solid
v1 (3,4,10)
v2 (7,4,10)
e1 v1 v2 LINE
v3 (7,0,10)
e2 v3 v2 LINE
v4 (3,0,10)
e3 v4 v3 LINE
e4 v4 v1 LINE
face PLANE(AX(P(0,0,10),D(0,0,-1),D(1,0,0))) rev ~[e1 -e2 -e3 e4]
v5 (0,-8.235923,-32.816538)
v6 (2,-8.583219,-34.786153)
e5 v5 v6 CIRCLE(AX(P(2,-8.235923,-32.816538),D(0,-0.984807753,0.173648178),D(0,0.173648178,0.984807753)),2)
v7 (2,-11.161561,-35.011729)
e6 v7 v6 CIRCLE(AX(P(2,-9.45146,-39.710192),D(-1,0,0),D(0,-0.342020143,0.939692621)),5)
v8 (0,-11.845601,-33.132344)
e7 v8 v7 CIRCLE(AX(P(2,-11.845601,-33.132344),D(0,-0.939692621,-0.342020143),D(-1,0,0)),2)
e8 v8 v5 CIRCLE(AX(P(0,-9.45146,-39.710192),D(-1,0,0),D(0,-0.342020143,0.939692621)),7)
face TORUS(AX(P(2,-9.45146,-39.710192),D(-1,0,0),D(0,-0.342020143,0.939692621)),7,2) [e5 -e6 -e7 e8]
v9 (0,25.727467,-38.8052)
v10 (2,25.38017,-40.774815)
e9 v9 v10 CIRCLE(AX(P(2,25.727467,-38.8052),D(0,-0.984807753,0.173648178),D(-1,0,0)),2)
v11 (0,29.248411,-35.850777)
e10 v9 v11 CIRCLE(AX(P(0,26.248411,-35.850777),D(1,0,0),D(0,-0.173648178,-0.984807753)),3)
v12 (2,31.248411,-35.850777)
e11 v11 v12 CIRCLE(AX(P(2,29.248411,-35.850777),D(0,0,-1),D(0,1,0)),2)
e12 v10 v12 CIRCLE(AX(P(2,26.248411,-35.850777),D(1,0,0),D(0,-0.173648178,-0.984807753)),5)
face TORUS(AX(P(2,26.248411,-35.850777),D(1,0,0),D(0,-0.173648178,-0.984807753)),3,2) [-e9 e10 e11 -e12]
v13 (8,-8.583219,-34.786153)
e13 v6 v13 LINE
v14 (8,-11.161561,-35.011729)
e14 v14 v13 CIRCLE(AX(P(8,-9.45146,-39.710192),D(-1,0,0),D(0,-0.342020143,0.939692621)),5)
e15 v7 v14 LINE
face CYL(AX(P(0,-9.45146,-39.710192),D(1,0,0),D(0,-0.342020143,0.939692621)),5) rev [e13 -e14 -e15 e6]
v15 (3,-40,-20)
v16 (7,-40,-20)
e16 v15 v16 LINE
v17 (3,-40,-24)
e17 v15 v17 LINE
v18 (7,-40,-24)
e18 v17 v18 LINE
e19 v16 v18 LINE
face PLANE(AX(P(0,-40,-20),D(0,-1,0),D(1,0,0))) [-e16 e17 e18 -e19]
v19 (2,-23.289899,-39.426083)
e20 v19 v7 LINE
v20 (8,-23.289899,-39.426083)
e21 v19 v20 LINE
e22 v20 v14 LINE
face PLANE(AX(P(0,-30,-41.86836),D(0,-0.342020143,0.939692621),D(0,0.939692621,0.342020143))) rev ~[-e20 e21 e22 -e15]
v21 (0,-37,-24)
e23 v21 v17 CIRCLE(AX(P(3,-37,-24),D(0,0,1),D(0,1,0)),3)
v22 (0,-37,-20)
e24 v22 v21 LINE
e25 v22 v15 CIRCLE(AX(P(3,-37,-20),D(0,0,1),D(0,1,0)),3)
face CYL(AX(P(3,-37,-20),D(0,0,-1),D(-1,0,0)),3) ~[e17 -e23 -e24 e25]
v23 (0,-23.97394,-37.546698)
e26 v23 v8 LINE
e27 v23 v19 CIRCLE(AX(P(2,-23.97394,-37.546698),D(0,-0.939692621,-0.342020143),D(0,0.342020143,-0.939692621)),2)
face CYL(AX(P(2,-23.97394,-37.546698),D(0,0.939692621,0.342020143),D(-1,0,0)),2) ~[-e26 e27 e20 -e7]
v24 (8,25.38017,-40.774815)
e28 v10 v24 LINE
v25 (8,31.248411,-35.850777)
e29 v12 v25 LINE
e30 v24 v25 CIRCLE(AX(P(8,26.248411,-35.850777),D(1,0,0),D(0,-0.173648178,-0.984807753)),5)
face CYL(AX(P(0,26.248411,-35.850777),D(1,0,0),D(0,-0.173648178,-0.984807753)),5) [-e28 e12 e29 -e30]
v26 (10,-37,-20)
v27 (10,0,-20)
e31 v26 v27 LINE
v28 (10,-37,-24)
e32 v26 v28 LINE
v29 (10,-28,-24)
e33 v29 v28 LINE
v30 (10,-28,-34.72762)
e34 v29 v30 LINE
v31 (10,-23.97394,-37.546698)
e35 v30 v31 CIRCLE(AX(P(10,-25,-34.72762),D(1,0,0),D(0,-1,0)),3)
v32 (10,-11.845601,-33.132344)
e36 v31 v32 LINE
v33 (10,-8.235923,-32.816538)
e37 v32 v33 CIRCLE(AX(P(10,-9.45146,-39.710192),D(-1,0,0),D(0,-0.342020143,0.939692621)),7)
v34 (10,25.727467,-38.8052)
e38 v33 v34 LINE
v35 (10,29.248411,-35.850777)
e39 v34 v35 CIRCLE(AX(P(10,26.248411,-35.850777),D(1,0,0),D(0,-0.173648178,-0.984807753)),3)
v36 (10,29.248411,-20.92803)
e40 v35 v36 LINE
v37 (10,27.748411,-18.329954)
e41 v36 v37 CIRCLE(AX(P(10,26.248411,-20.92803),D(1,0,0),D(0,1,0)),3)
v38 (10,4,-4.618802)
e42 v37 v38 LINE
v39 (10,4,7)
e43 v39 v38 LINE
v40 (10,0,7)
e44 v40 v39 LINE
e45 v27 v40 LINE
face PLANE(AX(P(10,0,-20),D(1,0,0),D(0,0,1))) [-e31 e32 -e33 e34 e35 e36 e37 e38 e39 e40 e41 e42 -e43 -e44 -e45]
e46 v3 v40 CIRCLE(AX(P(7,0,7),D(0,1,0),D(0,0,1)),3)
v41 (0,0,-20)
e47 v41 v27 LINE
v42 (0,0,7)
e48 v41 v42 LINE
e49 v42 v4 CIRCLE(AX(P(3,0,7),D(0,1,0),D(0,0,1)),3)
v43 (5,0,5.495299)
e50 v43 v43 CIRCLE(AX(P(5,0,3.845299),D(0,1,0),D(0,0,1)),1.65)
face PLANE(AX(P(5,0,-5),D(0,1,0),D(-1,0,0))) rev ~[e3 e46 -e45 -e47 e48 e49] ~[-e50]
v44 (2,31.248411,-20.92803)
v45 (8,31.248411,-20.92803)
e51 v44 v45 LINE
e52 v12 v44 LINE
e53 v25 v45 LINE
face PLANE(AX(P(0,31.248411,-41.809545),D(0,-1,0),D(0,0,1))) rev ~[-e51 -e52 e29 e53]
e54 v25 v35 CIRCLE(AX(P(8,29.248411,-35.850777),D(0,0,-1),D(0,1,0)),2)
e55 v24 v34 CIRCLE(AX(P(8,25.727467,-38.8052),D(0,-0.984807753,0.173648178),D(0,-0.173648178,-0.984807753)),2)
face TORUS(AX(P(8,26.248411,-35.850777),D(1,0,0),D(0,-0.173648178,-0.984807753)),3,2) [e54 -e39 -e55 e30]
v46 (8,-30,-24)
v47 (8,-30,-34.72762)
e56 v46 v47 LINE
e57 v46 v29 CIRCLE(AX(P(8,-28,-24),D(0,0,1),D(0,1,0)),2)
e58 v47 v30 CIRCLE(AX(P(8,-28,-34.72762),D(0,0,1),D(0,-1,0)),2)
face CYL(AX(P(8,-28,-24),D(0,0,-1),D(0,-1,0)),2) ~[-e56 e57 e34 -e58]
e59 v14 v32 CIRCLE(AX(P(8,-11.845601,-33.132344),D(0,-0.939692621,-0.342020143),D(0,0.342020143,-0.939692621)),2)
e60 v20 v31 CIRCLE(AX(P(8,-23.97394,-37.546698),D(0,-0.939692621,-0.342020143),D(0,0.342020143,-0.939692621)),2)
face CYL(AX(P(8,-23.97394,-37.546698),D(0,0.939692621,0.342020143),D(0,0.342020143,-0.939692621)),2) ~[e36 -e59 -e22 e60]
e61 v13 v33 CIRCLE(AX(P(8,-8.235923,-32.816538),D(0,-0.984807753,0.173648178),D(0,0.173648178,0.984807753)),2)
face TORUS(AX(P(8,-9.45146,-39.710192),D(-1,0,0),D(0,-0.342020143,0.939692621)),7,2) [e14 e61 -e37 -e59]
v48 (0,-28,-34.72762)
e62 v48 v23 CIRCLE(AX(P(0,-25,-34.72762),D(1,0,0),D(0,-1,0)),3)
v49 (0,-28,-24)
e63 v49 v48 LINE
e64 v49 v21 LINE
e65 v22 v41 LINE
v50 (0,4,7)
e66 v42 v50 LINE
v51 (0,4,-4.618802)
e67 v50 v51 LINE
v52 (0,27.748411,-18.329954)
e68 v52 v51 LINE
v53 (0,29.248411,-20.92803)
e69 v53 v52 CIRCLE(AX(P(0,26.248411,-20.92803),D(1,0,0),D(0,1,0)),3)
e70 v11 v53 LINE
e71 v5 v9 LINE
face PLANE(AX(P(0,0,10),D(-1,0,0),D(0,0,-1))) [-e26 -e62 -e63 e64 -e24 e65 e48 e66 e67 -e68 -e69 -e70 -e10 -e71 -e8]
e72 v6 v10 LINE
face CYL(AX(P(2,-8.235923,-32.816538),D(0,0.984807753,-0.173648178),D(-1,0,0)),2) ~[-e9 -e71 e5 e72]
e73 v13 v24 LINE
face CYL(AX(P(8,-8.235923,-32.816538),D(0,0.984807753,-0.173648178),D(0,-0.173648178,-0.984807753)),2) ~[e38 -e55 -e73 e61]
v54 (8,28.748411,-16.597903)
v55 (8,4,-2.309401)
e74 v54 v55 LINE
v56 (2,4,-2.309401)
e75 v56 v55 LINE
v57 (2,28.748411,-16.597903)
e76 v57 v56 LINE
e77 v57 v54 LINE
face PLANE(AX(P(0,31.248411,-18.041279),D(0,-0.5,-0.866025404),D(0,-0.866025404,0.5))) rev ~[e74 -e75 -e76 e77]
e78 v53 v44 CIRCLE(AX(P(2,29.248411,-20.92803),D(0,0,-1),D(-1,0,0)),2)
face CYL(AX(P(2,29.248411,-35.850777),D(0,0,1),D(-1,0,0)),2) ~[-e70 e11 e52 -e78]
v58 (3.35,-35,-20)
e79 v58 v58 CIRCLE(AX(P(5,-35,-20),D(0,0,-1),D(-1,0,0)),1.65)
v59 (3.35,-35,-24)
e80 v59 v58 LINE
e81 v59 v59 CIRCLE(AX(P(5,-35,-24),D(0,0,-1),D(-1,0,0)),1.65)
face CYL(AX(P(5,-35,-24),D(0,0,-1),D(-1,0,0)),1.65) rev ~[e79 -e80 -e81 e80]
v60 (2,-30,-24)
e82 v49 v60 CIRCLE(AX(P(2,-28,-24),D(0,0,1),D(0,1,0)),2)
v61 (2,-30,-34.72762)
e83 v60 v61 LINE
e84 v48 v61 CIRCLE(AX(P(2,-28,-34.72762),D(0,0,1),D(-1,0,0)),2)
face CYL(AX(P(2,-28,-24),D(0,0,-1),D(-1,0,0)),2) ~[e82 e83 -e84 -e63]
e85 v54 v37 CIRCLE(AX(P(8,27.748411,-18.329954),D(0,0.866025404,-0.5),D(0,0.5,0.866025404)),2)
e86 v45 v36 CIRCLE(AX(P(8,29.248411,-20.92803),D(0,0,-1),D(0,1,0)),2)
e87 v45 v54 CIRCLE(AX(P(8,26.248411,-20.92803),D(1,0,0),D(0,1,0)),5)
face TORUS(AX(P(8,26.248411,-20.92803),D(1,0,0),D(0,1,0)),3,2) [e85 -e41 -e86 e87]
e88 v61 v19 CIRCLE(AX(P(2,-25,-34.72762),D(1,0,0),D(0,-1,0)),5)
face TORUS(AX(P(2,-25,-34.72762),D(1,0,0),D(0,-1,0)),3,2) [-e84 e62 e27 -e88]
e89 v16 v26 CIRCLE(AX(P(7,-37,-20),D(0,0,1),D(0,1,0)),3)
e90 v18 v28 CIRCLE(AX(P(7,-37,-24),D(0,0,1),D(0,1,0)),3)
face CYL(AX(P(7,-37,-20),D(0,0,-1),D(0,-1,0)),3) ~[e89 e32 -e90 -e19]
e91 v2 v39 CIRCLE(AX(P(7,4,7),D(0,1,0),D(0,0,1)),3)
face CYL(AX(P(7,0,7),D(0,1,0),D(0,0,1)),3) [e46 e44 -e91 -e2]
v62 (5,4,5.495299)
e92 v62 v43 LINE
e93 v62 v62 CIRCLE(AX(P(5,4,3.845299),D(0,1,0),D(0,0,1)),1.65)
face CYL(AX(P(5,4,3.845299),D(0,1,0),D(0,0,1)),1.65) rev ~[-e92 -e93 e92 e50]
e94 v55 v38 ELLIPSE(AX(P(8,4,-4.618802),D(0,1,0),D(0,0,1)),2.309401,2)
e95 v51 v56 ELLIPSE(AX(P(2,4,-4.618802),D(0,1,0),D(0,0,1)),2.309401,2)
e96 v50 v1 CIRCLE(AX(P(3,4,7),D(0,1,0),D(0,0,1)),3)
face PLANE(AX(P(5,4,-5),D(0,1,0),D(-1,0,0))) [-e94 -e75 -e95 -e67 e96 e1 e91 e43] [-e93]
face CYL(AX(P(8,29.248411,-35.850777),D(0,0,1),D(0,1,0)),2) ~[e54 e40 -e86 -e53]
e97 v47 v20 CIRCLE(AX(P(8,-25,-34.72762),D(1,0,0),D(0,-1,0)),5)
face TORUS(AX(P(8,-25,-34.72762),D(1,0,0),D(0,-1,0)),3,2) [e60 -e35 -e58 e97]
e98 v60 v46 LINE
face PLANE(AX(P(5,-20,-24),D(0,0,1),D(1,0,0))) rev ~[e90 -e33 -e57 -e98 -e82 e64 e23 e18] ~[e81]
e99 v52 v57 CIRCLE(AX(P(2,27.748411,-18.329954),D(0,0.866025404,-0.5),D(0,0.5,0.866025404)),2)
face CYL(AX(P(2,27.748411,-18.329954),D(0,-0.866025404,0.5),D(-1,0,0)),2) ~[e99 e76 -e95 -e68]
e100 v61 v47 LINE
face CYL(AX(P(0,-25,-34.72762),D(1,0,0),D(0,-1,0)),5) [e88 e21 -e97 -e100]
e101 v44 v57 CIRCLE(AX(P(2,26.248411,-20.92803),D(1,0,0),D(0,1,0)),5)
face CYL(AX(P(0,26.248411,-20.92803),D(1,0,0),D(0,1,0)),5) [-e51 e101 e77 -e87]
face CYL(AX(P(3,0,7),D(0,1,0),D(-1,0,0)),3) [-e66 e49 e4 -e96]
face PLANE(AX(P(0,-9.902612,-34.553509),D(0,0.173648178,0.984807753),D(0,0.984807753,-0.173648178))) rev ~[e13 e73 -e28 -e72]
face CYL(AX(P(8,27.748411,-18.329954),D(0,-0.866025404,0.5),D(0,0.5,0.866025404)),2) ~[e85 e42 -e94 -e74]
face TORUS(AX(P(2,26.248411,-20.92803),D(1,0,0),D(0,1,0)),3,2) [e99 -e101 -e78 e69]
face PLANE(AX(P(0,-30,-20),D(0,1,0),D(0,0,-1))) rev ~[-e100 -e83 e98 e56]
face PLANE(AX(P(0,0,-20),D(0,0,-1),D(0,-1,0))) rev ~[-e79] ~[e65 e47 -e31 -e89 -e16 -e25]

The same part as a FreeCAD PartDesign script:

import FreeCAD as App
import Part
import Sketcher
from FreeCAD import Vector
Q = App.Units.Quantity


def edges_at(feature, points):
    """Names of the edges that pass closest to the given points."""
    edges = feature.Shape.Edges
    near = lambda p: min(range(len(edges)), key=lambda i: edges[i].distToShape(Part.Vertex(*p))[0])
    return sorted({f"Edge{near(p) + 1}" for p in points})

doc = App.newDocument("Part")
body = doc.addObject("PartDesign::Body", "Body")

# Sketch on YZ plane
sketch1 = doc.addObject("Sketcher::SketchObject", "Sketch")
body.addObject(sketch1)
sketch1.AttachmentSupport = (doc.YZ_Plane, [""])
sketch1.MapMode = "FlatFace"
sketch1.addGeometry([
    Part.LineSegment(Vector(0, 0, 0), Vector(0, -20, 0)),  # 0
    Part.LineSegment(Vector(0, -20, 0), Vector(-30, -20, 0)),  # 1
    Part.LineSegment(Vector(-30, -20, 0), Vector(-30, -42, 0)),  # 2
    Part.LineSegment(Vector(-30, -42, 0), Vector(-10, -35, 0)),  # 3
    Part.LineSegment(Vector(-10, -35, 0), Vector(31, -42, 0)),  # 4
    Part.LineSegment(Vector(31, -42, 0), Vector(31, -18, 0)),  # 5
    Part.LineSegment(Vector(31, -18, 0), Vector(0, 0, 0)),  # 6
], False)
sketch1.addConstraint([
    Sketcher.Constraint("Coincident", 0, 2, 1, 1),
    Sketcher.Constraint("Coincident", 1, 2, 2, 1),
    Sketcher.Constraint("Coincident", 2, 2, 3, 1),
    Sketcher.Constraint("Coincident", 3, 2, 4, 1),
    Sketcher.Constraint("Coincident", 4, 2, 5, 1),
    Sketcher.Constraint("Coincident", 5, 2, 6, 1),
    Sketcher.Constraint("Coincident", 6, 2, 0, 1),
    Sketcher.Constraint("Vertical", 0),
    Sketcher.Constraint("Horizontal", 1),
    Sketcher.Constraint("Vertical", 2),
    Sketcher.Constraint("Vertical", 5),
    Sketcher.Constraint("Coincident", 6, 2, -1, 1),
    Sketcher.Constraint("DistanceX", 1, 2, 1, 1, 30.0),
    Sketcher.Constraint("DistanceY", 0, 2, 0, 1, 20.0),
    Sketcher.Constraint("Angle", 3, Q("20 deg")),
    Sketcher.Constraint("Angle", 4, Q("-10 deg")),
    Sketcher.Constraint("Angle", 6, Q("150 deg")),
    Sketcher.Constraint("DistanceY", 2, 2, 2, 1, 21.86836),
    Sketcher.Constraint("DistanceY", 5, 1, 5, 2, 23.768266),
    Sketcher.Constraint("DistanceX", 3, 2, -1, 1, 9.902612),
])
pad1 = doc.addObject("PartDesign::Pad", "Pad")
body.addObject(pad1)
pad1.Profile = sketch1
pad1.Length = 10
doc.recompute()

fillet = doc.addObject("PartDesign::Fillet", "Fillet")
body.addObject(fillet)
fillet.Base = (pad1, edges_at(pad1, [
    (5, 31.248, -18.041),
    (5, 31.248, -41.81),
    (5, -9.903, -34.554),
    (5, -30, -41.868),
]))
fillet.Radius = 5

# Sketch on XZ plane
sketch2 = doc.addObject("Sketcher::SketchObject", "Sketch001")
body.addObject(sketch2)
sketch2.AttachmentSupport = (doc.XZ_Plane, [""])
sketch2.MapMode = "FlatFace"
sketch2.addGeometry([
    Part.LineSegment(Vector(0, 10, 0), Vector(0, -20, 0)),
    Part.LineSegment(Vector(0, -20, 0), Vector(10, -20, 0)),
    Part.LineSegment(Vector(10, -20, 0), Vector(10, 10, 0)),
    Part.LineSegment(Vector(10, 10, 0), Vector(0, 10, 0)),
], False)
sketch2.addConstraint([
    Sketcher.Constraint("Coincident", 0, 2, 1, 1),
    Sketcher.Constraint("Coincident", 1, 2, 2, 1),
    Sketcher.Constraint("Coincident", 2, 2, 3, 1),
    Sketcher.Constraint("Coincident", 3, 2, 0, 1),
    Sketcher.Constraint("Vertical", 0),
    Sketcher.Constraint("Horizontal", 1),
    Sketcher.Constraint("Vertical", 2),
    Sketcher.Constraint("Horizontal", 3),
    Sketcher.Constraint("PointOnObject", 0, 2, -2),
    Sketcher.Constraint("DistanceX", 1, 1, 1, 2, 10.0),
    Sketcher.Constraint("DistanceY", 0, 2, 0, 1, 30.0),
    Sketcher.Constraint("DistanceY", 0, 2, -1, 1, 20.0),
])
pad2 = doc.addObject("PartDesign::Pad", "Pad001")
body.addObject(pad2)
pad2.Profile = sketch2
pad2.Length = 4
pad2.Reversed = True

# Sketch on XZ plane
sketch3 = doc.addObject("Sketcher::SketchObject", "Sketch002")
body.addObject(sketch3)
sketch3.AttachmentSupport = (doc.XZ_Plane, [""])
sketch3.MapMode = "FlatFace"
sketch3.AttachmentOffset = App.Placement(Vector(0, 0, -4), App.Rotation())
sketch3.addGeometry(Part.Circle(Vector(5, 3.8, 0), Vector(0, 0, 1), 1.6), False)
sketch3.addConstraint([
    Sketcher.Constraint("Diameter", 0, 3.3),
    Sketcher.Constraint("DistanceX", -1, 1, 0, 3, 5.0),
    Sketcher.Constraint("DistanceY", -1, 1, 0, 3, 3.845299),
])
pocket1 = doc.addObject("PartDesign::Pocket", "Pocket")
body.addObject(pocket1)
pocket1.Profile = sketch3
pocket1.Type = "ThroughAll"
pocket1.Reversed = True

# Sketch on XY plane
sketch4 = doc.addObject("Sketcher::SketchObject", "Sketch003")
body.addObject(sketch4)
sketch4.AttachmentSupport = (doc.XY_Plane, [""])
sketch4.MapMode = "FlatFace"
sketch4.AttachmentOffset = App.Placement(Vector(0, 0, -20), App.Rotation())
sketch4.addGeometry([
    Part.LineSegment(Vector(0, 0, 0), Vector(0, -40, 0)),
    Part.LineSegment(Vector(0, -40, 0), Vector(10, -40, 0)),
    Part.LineSegment(Vector(10, -40, 0), Vector(10, 0, 0)),
    Part.LineSegment(Vector(10, 0, 0), Vector(0, 0, 0)),
], False)
sketch4.addConstraint([
    Sketcher.Constraint("Coincident", 0, 2, 1, 1),
    Sketcher.Constraint("Coincident", 1, 2, 2, 1),
    Sketcher.Constraint("Coincident", 2, 2, 3, 1),
    Sketcher.Constraint("Coincident", 3, 2, 0, 1),
    Sketcher.Constraint("Vertical", 0),
    Sketcher.Constraint("Horizontal", 1),
    Sketcher.Constraint("Vertical", 2),
    Sketcher.Constraint("Horizontal", 3),
    Sketcher.Constraint("Coincident", 3, 2, -1, 1),
    Sketcher.Constraint("DistanceX", 1, 1, 1, 2, 10.0),
    Sketcher.Constraint("DistanceY", 0, 2, 0, 1, 40.0),
])
pad3 = doc.addObject("PartDesign::Pad", "Pad002")
body.addObject(pad3)
pad3.Profile = sketch4
pad3.Length = 4
pad3.Reversed = True

# Sketch on XY plane
sketch5 = doc.addObject("Sketcher::SketchObject", "Sketch004")
body.addObject(sketch5)
sketch5.AttachmentSupport = (doc.XY_Plane, [""])
sketch5.MapMode = "FlatFace"
sketch5.AttachmentOffset = App.Placement(Vector(0, 0, -24), App.Rotation())
sketch5.addGeometry(Part.Circle(Vector(5, -35, 0), Vector(0, 0, 1), 1.6), False)
sketch5.addConstraint([
    Sketcher.Constraint("Diameter", 0, 3.3),
    Sketcher.Constraint("DistanceX", -1, 1, 0, 3, 5.0),
    Sketcher.Constraint("DistanceY", 0, 3, -1, 1, 35.0),
])
pocket2 = doc.addObject("PartDesign::Pocket", "Pocket001")
body.addObject(pocket2)
pocket2.Profile = sketch5
pocket2.Type = "ThroughAll"
pocket2.Reversed = True
doc.recompute()

fillet2 = doc.addObject("PartDesign::Fillet", "Fillet001")
body.addObject(fillet2)
fillet2.Base = (pocket2, edges_at(pocket2, [
    (10, 2, 10),
    (0, 2, 10),
    (0, -40, -22),
    (10, -40, -22),
]))
fillet2.Radius = 3
doc.recompute()

fillet3 = doc.addObject("PartDesign::Fillet", "Fillet002")
body.addObject(fillet3)
fillet3.Base = (fillet2, edges_at(fillet2, [
    (0, -17.226, -37.219),
    (10, -17.226, -37.219),
    (0, 16.374, -9.454),
    (0, 31.248, -28.389),
    (0, 8.398, -37.78),
    (0, 30.579, -18.428),
    (0, 29.462, -39.681),
    (0, -27.868, -38.823),
    (10, 16.374, -9.454),
    (10, 8.398, -37.78),
    (10, 31.248, -28.389),
    (10, 30.579, -18.428),
    (10, 29.462, -39.681),
    (10, -27.868, -38.823),
    (0, -9.887, -34.729),
    (10, -9.887, -34.729),
    (0, -30, -29.364),
    (10, -30, -29.364),
]))
fillet3.Radius = 2

doc.recompute()
